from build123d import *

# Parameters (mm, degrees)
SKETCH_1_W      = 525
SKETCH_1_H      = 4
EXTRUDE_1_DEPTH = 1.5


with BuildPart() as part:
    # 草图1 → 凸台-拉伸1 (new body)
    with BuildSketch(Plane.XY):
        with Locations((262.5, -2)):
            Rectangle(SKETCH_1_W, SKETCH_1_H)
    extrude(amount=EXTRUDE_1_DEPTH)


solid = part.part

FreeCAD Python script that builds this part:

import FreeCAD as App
import Part
import Sketcher
Q = App.Units.Quantity


def add_polygon(sketch, points):
    """Adds a closed chain of lines whose ends are joined by coincident constraints."""
    first, n = sketch.GeometryCount, len(points)
    for a, b in zip(points, points[1:] + points[:1]):
        sketch.addGeometry(Part.LineSegment(App.Vector(*a, 0), App.Vector(*b, 0)), False)
    for i in range(n):
        sketch.addConstraint(Sketcher.Constraint("Coincident", first + i, 2, first + (i + 1) % n, 1))

doc = App.newDocument("Part")
body = doc.addObject("PartDesign::Body", "Body")

sketch1 = doc.addObject("Sketcher::SketchObject", "Sketch")
body.addObject(sketch1)
sketch1.AttachmentSupport = (doc.XY_Plane, [""])
sketch1.MapMode = "FlatFace"
add_polygon(sketch1, [(0, 0), (0, -4), (525, -4), (525, 0)])
sketch1.addConstraint(Sketcher.Constraint("Vertical", 0))
sketch1.addConstraint(Sketcher.Constraint("Horizontal", 1))
sketch1.addConstraint(Sketcher.Constraint("Vertical", 2))
sketch1.addConstraint(Sketcher.Constraint("Horizontal", 3))
sketch1.addConstraint(Sketcher.Constraint("Coincident", 3, 2, -1, 1))
sketch1.addConstraint(Sketcher.Constraint("DistanceX", 1, 1, 1, 2, Q("525 mm")))
sketch1.addConstraint(Sketcher.Constraint("DistanceY", 0, 2, 0, 1, Q("4 mm")))
pad1 = doc.addObject("PartDesign::Pad", "Pad")
body.addObject(pad1)
pad1.Profile = sketch1
pad1.Length = 1.5

doc.recompute()
